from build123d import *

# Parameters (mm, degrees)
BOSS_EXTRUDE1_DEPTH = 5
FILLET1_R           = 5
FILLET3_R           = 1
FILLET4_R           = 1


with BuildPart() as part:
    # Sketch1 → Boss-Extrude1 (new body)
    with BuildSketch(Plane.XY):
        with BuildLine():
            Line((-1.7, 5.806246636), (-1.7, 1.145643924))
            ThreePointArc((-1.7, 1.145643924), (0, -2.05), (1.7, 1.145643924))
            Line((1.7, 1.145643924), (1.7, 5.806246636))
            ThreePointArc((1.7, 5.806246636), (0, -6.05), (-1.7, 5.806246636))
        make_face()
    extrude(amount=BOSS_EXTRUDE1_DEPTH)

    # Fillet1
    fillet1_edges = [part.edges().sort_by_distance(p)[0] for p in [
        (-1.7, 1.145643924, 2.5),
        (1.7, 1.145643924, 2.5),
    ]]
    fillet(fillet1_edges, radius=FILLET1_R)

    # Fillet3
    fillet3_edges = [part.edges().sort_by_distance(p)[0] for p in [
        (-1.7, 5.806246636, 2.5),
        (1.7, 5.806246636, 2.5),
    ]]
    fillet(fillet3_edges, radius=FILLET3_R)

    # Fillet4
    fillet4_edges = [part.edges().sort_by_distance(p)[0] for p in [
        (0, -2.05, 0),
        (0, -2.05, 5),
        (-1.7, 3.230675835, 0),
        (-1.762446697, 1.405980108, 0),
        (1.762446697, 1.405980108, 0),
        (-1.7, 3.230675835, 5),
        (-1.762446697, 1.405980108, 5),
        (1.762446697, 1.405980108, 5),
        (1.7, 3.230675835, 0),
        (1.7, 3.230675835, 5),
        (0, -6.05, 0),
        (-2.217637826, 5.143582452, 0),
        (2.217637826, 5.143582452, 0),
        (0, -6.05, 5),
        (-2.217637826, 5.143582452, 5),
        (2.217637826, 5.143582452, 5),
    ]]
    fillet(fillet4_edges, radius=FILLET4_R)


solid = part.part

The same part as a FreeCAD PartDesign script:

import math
import FreeCAD as App
import Part
import Sketcher

V = App.Vector


def edges_at(feature, points):
    """Names of the edges that pass closest to the given points."""
    edges = feature.Shape.Edges
    near = lambda p: min(range(len(edges)), key=lambda i: edges[i].distToShape(Part.Vertex(*p))[0])
    return sorted({f"Edge{near(p) + 1}" for p in points})

doc = App.newDocument("Part")
body = doc.addObject("PartDesign::Body", "Body")

sketch1 = doc.addObject("Sketcher::SketchObject", "Sketch")
body.addObject(sketch1)
sketch1.AttachmentSupport = (doc.XY_Plane, [""])
sketch1.MapMode = "FlatFace"
sketch1.addGeometry([
    Part.LineSegment(V(-1.7, 1.1, 0), V(-1.7, 5.8, 0)),
    Part.ArcOfCircle(Part.Circle(V(0, 0, 0), V(0, 0, 1), 6), math.radians(106), math.radians(434)),
    Part.LineSegment(V(1.7, 5.8, 0), V(1.7, 1.1, 0)),
    Part.ArcOfCircle(Part.Circle(V(0, 0, 0), V(0, 0, 1), 2), math.radians(146), math.radians(394)),
], False)
sketch1.addConstraint([
    Sketcher.Constraint("Coincident", 0, 2, 1, 1),
    Sketcher.Constraint("Coincident", 1, 2, 2, 1),
    Sketcher.Constraint("Coincident", 2, 2, 3, 2),
    Sketcher.Constraint("Coincident", 3, 1, 0, 1),
    Sketcher.Constraint("Vertical", 0),
    Sketcher.Constraint("Vertical", 2),
    Sketcher.Constraint("Coincident", 1, 3, -1, 1),
    Sketcher.Constraint("Coincident", 3, 3, -1, 1),
    Sketcher.Constraint("Horizontal", 0, 2, 1, 2),
    Sketcher.Constraint("Radius", 1, 6.05),
    Sketcher.Constraint("Radius", 3, 2.05),
    Sketcher.Constraint("DistanceX", 0, 2, -1, 1, 1.7),
])
pad1 = doc.addObject("PartDesign::Pad", "Pad")
body.addObject(pad1)
pad1.Profile = sketch1
pad1.Length = 5
doc.recompute()

fillet = doc.addObject("PartDesign::Fillet", "Fillet")
body.addObject(fillet)
fillet.Base = (pad1, edges_at(pad1, [(-1.7, 1.146, 2.5), (1.7, 1.146, 2.5)]))
fillet.Radius = 5
doc.recompute()

fillet2 = doc.addObject("PartDesign::Fillet", "Fillet001")
body.addObject(fillet2)
fillet2.Base = (fillet, edges_at(fillet, [(-1.7, 5.806, 2.5), (1.7, 5.806, 2.5)]))
fillet2.Radius = 1
doc.recompute()

fillet3 = doc.addObject("PartDesign::Fillet", "Fillet002")
body.addObject(fillet3)
fillet3.Base = (fillet2, edges_at(fillet2, [
    (0, -2.05, 0),
    (0, -2.05, 5),
    (-1.7, 3.231, 0),
    (-1.762, 1.406, 0),
    (1.762, 1.406, 0),
    (-1.7, 3.231, 5),
    (-1.762, 1.406, 5),
    (1.762, 1.406, 5),
    (1.7, 3.231, 0),
    (1.7, 3.231, 5),
    (0, -6.05, 0),
    (-2.218, 5.144, 0),
    (2.218, 5.144, 0),
    (0, -6.05, 5),
    (-2.218, 5.144, 5),
    (2.218, 5.144, 5),
]))
fillet3.Radius = 1

doc.recompute()
